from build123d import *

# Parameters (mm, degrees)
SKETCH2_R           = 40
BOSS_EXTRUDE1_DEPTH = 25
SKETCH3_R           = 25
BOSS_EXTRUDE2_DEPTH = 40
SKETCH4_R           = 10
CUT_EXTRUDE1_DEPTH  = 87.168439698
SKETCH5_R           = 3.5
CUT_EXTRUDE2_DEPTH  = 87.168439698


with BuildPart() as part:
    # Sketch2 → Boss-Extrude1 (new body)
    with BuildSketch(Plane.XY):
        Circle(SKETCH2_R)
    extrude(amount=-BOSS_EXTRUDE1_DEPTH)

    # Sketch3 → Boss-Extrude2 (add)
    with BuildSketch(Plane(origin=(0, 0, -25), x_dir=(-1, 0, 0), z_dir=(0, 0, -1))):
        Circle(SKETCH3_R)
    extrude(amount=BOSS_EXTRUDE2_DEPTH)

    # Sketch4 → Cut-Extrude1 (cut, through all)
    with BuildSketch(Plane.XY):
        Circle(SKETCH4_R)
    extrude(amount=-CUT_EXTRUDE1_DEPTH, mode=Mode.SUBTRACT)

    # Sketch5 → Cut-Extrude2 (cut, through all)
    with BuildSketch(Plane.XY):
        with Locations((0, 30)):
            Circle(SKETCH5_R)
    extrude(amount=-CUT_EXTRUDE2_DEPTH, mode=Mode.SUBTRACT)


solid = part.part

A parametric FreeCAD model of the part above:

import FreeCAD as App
import Part
import Sketcher

doc = App.newDocument("Part")
body = doc.addObject("PartDesign::Body", "Body")

# Sketch on XY plane
sketch1 = body.newObject("Sketcher::SketchObject", "Sketch")
sketch1.AttachmentSupport = (doc.getObject("XY_Plane"), [""])
sketch1.MapMode = "FlatFace"
sketch1.addGeometry(Part.Circle(App.Vector(0, 0, 0), App.Vector(0, 0, 1), 40), False)
sketch1.addConstraint(Sketcher.Constraint("Coincident", 0, 3, -1, 1))
sketch1.addConstraint(Sketcher.Constraint("Diameter", 0, 80.0))
pad1 = body.newObject("PartDesign::Pad", "Pad")
pad1.Profile = sketch1
pad1.Length = 25
pad1.Reversed = True

# Sketch on XY plane
sketch2 = body.newObject("Sketcher::SketchObject", "Sketch001")
sketch2.AttachmentSupport = (doc.getObject("XY_Plane"), [""])
sketch2.MapMode = "FlatFace"
sketch2.AttachmentOffset = App.Placement(App.Vector(0, 0, -25), App.Rotation())
sketch2.addGeometry(Part.Circle(App.Vector(0, 0, 0), App.Vector(0, 0, 1), 25), False)
sketch2.addConstraint(Sketcher.Constraint("Coincident", 0, 3, -1, 1))
sketch2.addConstraint(Sketcher.Constraint("Diameter", 0, 50.0))
pad2 = body.newObject("PartDesign::Pad", "Pad001")
pad2.Profile = sketch2
pad2.Length = 40
pad2.Reversed = True

# Sketch on XY plane
sketch3 = body.newObject("Sketcher::SketchObject", "Sketch002")
sketch3.AttachmentSupport = (doc.getObject("XY_Plane"), [""])
sketch3.MapMode = "FlatFace"
sketch3.addGeometry(Part.Circle(App.Vector(0, 0, 0), App.Vector(0, 0, 1), 10), False)
sketch3.addConstraint(Sketcher.Constraint("Coincident", 0, 3, -1, 1))
sketch3.addConstraint(Sketcher.Constraint("Diameter", 0, 20.0))
pocket1 = body.newObject("PartDesign::Pocket", "Pocket")
pocket1.Profile = sketch3
pocket1.Type = "ThroughAll"

# Sketch on XY plane
sketch4 = body.newObject("Sketcher::SketchObject", "Sketch003")
sketch4.AttachmentSupport = (doc.getObject("XY_Plane"), [""])
sketch4.MapMode = "FlatFace"
sketch4.addGeometry(Part.Circle(App.Vector(0, 30, 0), App.Vector(0, 0, 1), 3.5), False)
sketch4.addConstraint(Sketcher.Constraint("PointOnObject", 0, 3, -2))
sketch4.addConstraint(Sketcher.Constraint("Diameter", 0, 7.0))
sketch4.addConstraint(Sketcher.Constraint("DistanceY", -1, 1, 0, 3, 30.0))
pocket2 = body.newObject("PartDesign::Pocket", "Pocket001")
pocket2.Profile = sketch4
pocket2.Type = "ThroughAll"

doc.recompute()
